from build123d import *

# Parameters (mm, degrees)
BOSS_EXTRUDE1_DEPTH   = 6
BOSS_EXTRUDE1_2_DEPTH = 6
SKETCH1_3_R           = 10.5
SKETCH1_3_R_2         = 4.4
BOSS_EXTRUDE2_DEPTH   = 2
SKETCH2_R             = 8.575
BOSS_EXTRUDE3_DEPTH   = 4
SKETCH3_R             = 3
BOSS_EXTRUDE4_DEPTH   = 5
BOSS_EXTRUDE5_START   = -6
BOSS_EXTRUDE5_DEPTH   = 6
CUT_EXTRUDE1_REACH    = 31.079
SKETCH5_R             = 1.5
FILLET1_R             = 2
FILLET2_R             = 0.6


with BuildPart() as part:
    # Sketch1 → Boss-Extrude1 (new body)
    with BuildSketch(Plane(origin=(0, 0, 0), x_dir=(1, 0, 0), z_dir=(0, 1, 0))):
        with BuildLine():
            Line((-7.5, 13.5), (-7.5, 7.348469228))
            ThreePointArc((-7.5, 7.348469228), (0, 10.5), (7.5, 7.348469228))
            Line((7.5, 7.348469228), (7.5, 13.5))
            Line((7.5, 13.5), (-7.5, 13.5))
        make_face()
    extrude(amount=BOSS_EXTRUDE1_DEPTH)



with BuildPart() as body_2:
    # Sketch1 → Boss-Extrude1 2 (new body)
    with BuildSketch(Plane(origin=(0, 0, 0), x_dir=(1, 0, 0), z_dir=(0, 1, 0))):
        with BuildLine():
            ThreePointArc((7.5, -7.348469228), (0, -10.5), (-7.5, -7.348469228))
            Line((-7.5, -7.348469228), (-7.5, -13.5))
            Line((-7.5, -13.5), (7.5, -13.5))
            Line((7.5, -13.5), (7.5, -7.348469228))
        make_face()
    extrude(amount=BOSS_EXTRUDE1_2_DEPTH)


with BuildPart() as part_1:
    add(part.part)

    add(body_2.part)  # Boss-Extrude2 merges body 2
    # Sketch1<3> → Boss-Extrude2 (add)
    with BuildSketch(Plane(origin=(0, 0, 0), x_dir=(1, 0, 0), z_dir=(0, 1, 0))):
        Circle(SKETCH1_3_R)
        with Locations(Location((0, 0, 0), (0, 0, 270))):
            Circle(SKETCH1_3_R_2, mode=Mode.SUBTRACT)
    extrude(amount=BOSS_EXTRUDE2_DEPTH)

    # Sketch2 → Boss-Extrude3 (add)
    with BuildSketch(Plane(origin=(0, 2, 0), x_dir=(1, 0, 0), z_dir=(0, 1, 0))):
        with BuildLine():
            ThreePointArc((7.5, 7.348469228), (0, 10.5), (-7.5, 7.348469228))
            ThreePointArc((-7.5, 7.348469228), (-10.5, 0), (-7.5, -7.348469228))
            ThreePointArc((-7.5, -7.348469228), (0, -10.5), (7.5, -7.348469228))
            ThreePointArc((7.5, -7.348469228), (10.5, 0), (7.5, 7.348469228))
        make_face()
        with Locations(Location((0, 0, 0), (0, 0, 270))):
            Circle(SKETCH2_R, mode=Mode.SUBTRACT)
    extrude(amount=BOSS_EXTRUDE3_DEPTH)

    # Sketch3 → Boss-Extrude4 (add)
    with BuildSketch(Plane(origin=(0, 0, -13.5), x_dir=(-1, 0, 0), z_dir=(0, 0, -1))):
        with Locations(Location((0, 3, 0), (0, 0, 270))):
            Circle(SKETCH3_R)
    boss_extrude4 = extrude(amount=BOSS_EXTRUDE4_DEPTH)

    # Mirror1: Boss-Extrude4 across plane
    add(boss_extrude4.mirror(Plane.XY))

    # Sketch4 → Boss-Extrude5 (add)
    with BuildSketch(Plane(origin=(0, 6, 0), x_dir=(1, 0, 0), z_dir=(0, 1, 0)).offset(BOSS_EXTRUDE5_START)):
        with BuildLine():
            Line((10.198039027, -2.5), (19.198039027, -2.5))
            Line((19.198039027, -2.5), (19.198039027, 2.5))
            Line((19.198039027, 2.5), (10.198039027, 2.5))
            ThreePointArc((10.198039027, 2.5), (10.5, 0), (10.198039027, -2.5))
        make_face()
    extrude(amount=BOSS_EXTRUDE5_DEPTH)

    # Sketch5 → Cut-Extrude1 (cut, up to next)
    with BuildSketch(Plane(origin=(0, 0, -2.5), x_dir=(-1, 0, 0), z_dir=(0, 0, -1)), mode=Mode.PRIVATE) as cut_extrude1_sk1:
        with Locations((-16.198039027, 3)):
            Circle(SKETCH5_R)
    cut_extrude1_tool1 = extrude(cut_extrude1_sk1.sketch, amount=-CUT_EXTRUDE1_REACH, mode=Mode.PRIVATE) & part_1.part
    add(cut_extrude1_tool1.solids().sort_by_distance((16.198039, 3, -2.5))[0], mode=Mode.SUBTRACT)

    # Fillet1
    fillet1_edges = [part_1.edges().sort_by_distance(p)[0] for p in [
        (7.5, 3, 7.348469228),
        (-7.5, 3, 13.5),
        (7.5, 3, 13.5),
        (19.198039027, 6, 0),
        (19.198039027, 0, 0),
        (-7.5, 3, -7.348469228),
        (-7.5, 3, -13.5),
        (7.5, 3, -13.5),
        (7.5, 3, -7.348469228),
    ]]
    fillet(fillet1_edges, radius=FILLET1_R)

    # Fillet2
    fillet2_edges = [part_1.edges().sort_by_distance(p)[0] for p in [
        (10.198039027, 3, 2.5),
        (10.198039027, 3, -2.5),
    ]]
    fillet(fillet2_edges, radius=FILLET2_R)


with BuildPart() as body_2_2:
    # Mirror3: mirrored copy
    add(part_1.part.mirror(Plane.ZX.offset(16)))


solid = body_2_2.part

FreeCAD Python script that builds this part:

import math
import FreeCAD as App
import Part
import Sketcher

V = App.Vector
Q = App.Units.Quantity


def edges_at(feature, points):
    """Names of the edges that pass closest to the given points."""
    edges = feature.Shape.Edges
    near = lambda p: min(range(len(edges)), key=lambda i: edges[i].distToShape(Part.Vertex(*p))[0])
    return sorted({f"Edge{near(p) + 1}" for p in points})

doc = App.newDocument("Part")
body = doc.addObject("PartDesign::Body", "Body")

# Sketch on XZ plane
sketch1 = doc.addObject("Sketcher::SketchObject", "Sketch")
body.addObject(sketch1)
sketch1.AttachmentSupport = (doc.XZ_Plane, [""])
sketch1.MapMode = "FlatFace"
sketch1.addGeometry([
    Part.LineSegment(V(-8, -14, 0), V(-8, -7, 0)),
    Part.ArcOfCircle(Part.Circle(V(0, 0, 0), V(0, 0, 1), 10), math.radians(-136), math.radians(-44)),
    Part.LineSegment(V(8, -7, 0), V(8, -14, 0)),
    Part.LineSegment(V(8, -14, 0), V(-8, -14, 0)),
], False)
sketch1.addConstraint([
    Sketcher.Constraint("Coincident", 0, 2, 1, 1),
    Sketcher.Constraint("Coincident", 1, 2, 2, 1),
    Sketcher.Constraint("Coincident", 2, 2, 3, 1),
    Sketcher.Constraint("Coincident", 3, 2, 0, 1),
    Sketcher.Constraint("Vertical", 0),
    Sketcher.Constraint("Vertical", 2),
    Sketcher.Constraint("Horizontal", 3),
    Sketcher.Constraint("Coincident", 1, 3, -1, 1),
    Sketcher.Constraint("Horizontal", 0, 2, 1, 2),
    Sketcher.Constraint("Radius", 1, Q("10.5 mm")),
    Sketcher.Constraint("DistanceX", 3, 2, 3, 1, Q("15 mm")),
    Sketcher.Constraint("DistanceY", 2, 2, -1, 1, Q("13.5 mm")),
])
pad1 = doc.addObject("PartDesign::Pad", "Pad")
body.addObject(pad1)
pad1.Profile = sketch1
pad1.Length = 6
pad1.Reversed = True
body2 = doc.addObject("PartDesign::Body", "Body001")

# Sketch on XZ plane
sketch2 = doc.addObject("Sketcher::SketchObject", "Sketch001")
body2.addObject(sketch2)
sketch2.AttachmentSupport = (doc.getObject("XZ_Plane001"), [""])
sketch2.MapMode = "FlatFace"
sketch2.addGeometry([
    Part.ArcOfCircle(Part.Circle(V(0, 0, 0), V(0, 0, 1), 10), math.radians(44), math.radians(136)),
    Part.LineSegment(V(-8, 7, 0), V(-8, 14, 0)),
    Part.LineSegment(V(-8, 14, 0), V(8, 14, 0)),
    Part.LineSegment(V(8, 14, 0), V(8, 7, 0)),
], False)
sketch2.addConstraint([
    Sketcher.Constraint("Coincident", 0, 2, 1, 1),
    Sketcher.Constraint("Coincident", 1, 2, 2, 1),
    Sketcher.Constraint("Coincident", 2, 2, 3, 1),
    Sketcher.Constraint("Coincident", 3, 2, 0, 1),
    Sketcher.Constraint("Vertical", 1),
    Sketcher.Constraint("Horizontal", 2),
    Sketcher.Constraint("Vertical", 3),
    Sketcher.Constraint("Coincident", 0, 3, -1, 1),
    Sketcher.Constraint("Horizontal", 0, 2, 3, 2),
    Sketcher.Constraint("Radius", 0, Q("10.5 mm")),
    Sketcher.Constraint("DistanceX", 2, 1, 2, 2, Q("15 mm")),
    Sketcher.Constraint("DistanceY", -1, 1, 1, 2, Q("13.5 mm")),
])
pad2 = doc.addObject("PartDesign::Pad", "Pad001")
body2.addObject(pad2)
pad2.Profile = sketch2
pad2.Length = 6
pad2.Reversed = True
body.AllowCompound = True
doc.recompute()

boolean = doc.addObject("PartDesign::Boolean", "Boolean")
body.addObject(boolean)
boolean.Type = "Fuse"
boolean.addObjects([body2])

# Sketch on XZ plane
sketch3 = doc.addObject("Sketcher::SketchObject", "Sketch002")
body.addObject(sketch3)
sketch3.AttachmentSupport = (doc.XZ_Plane, [""])
sketch3.MapMode = "FlatFace"
sketch3.addGeometry([
    Part.Circle(V(0, 0, 0), V(0, 0, 1), 10.5),
    Part.Circle(V(0, 0, 0), V(0, 0, 1), 4.4),
], False)
sketch3.addConstraint([
    Sketcher.Constraint("Coincident", 0, 3, -1, 1),
    Sketcher.Constraint("Coincident", 1, 3, -1, 1),
    Sketcher.Constraint("Diameter", 0, Q("21 mm")),
    Sketcher.Constraint("Diameter", 1, Q("8.8 mm")),
])
pad3 = doc.addObject("PartDesign::Pad", "Pad002")
body.addObject(pad3)
pad3.Profile = sketch3
pad3.Length = 2
pad3.Reversed = True

# Sketch on XZ plane
sketch4 = doc.addObject("Sketcher::SketchObject", "Sketch003")
body.addObject(sketch4)
sketch4.AttachmentSupport = (doc.XZ_Plane, [""])
sketch4.MapMode = "FlatFace"
sketch4.AttachmentOffset = App.Placement(V(0, 0, -2), App.Rotation())
sketch4.addGeometry([
    Part.ArcOfCircle(Part.Circle(V(0, 0, 0), V(0, 0, 1), 10), math.radians(-136), math.radians(-44)),  # 0
    Part.ArcOfCircle(Part.Circle(V(0, 0, 0), V(0, 0, 1), 10), math.radians(136), math.radians(224)),  # 1
    Part.ArcOfCircle(Part.Circle(V(0, 0, 0), V(0, 0, 1), 10), math.radians(44), math.radians(136)),  # 2
    Part.ArcOfCircle(Part.Circle(V(0, 0, 0), V(0, 0, 1), 10), math.radians(-44), math.radians(44)),  # 3
    Part.Circle(V(0, 0, 0), V(0, 0, 1), 9),  # 4
], False)
sketch4.addConstraint([
    Sketcher.Constraint("Tangent", 0, 1, 1, 2),
    Sketcher.Constraint("Tangent", 1, 1, 2, 2),
    Sketcher.Constraint("Tangent", 2, 1, 3, 2),
    Sketcher.Constraint("Tangent", 3, 1, 0, 2),
    Sketcher.Constraint("Coincident", 0, 3, -1, 1),
    Sketcher.Constraint("Coincident", 4, 3, -1, 1),
    Sketcher.Constraint("Equal", 0, 1),
    Sketcher.Constraint("Horizontal", 1, 1, 2, 1),
    Sketcher.Constraint("Horizontal", 0, 1, 3, 1),
    Sketcher.Constraint("Vertical", 0, 1, 1, 1),
    Sketcher.Constraint("Radius", 0, Q("10.5 mm")),
    Sketcher.Constraint("Diameter", 4, Q("17.15 mm")),
    Sketcher.Constraint("DistanceX", 0, 1, -1, 1, Q("7.5 mm")),
])
pad4 = doc.addObject("PartDesign::Pad", "Pad003")
body.addObject(pad4)
pad4.Profile = sketch4
pad4.Length = 4
pad4.Reversed = True

# Sketch on XY plane
sketch5 = doc.addObject("Sketcher::SketchObject", "Sketch004")
body.addObject(sketch5)
sketch5.AttachmentSupport = (doc.XY_Plane, [""])
sketch5.MapMode = "FlatFace"
sketch5.AttachmentOffset = App.Placement(V(0, 0, -13.5), App.Rotation())
sketch5.addGeometry(Part.Circle(V(0, 3, 0), V(0, 0, 1), 3), False)
sketch5.addConstraint([
    Sketcher.Constraint("PointOnObject", 0, 3, -2),
    Sketcher.Constraint("Diameter", 0, Q("6 mm")),
    Sketcher.Constraint("DistanceY", -1, 1, 0, 3, Q("3 mm")),
])
pad5 = doc.addObject("PartDesign::Pad", "Pad004")
body.addObject(pad5)
pad5.Profile = sketch5
pad5.Length = 5
pad5.Reversed = True
doc.recompute()

mirrored = doc.addObject("PartDesign::Mirrored", "Mirrored")
body.addObject(mirrored)
mirrored.Originals = [pad5]
mirrored.MirrorPlane = (doc.XY_Plane, [""])
body.Tip = mirrored

# Sketch on XZ plane
sketch6 = doc.addObject("Sketcher::SketchObject", "Sketch005")
body.addObject(sketch6)
sketch6.AttachmentSupport = (doc.XZ_Plane, [""])
sketch6.MapMode = "FlatFace"
sketch6.addGeometry([
    Part.LineSegment(V(10, 2, 0), V(19, 2, 0)),
    Part.LineSegment(V(19, 2, 0), V(19, -2, 0)),
    Part.LineSegment(V(19, -2, 0), V(10, -2, 0)),
    Part.ArcOfCircle(Part.Circle(V(0, 0, 0), V(0, 0, 1), 10), math.radians(-14), math.radians(14)),
], False)
sketch6.addConstraint([
    Sketcher.Constraint("Coincident", 0, 2, 1, 1),
    Sketcher.Constraint("Coincident", 1, 2, 2, 1),
    Sketcher.Constraint("Coincident", 2, 2, 3, 1),
    Sketcher.Constraint("Coincident", 3, 2, 0, 1),
    Sketcher.Constraint("Horizontal", 0),
    Sketcher.Constraint("Vertical", 1),
    Sketcher.Constraint("Horizontal", 2),
    Sketcher.Constraint("Coincident", 3, 3, -1, 1),
    Sketcher.Constraint("Vertical", 2, 2, 3, 2),
    Sketcher.Constraint("Radius", 3, Q("10.5 mm")),
    Sketcher.Constraint("DistanceX", 0, 1, 0, 2, Q("9 mm")),
    Sketcher.Constraint("DistanceY", 1, 2, 1, 1, Q("5 mm")),
])
pad6 = doc.addObject("PartDesign::Pad", "Pad005")
body.addObject(pad6)
pad6.Profile = sketch6
pad6.Length = 6
pad6.Reversed = True

# Sketch on XY plane
sketch7 = doc.addObject("Sketcher::SketchObject", "Sketch006")
body.addObject(sketch7)
sketch7.AttachmentSupport = (doc.XY_Plane, [""])
sketch7.MapMode = "FlatFace"
sketch7.AttachmentOffset = App.Placement(V(0, 0, -2.5), App.Rotation())
sketch7.addGeometry(Part.Circle(V(16.2, 3, 0), V(0, 0, 1), 1.5), False)
sketch7.addConstraint([
    Sketcher.Constraint("Diameter", 0, Q("3 mm")),
    Sketcher.Constraint("DistanceY", -1, 1, 0, 3, Q("3 mm")),
    Sketcher.Constraint("DistanceX", -1, 1, 0, 3, Q("16.198039 mm")),
])
pocket1 = doc.addObject("PartDesign::Pocket", "Pocket")
body.addObject(pocket1)
pocket1.Profile = sketch7
pocket1.Type = "UpToFirst"
pocket1.Reversed = True
doc.recompute()

fillet = doc.addObject("PartDesign::Fillet", "Fillet")
body.addObject(fillet)
fillet.Base = (pocket1, edges_at(pocket1, [
    (7.5, 4, 7.348),
    (-7.5, 3, 13.5),
    (7.5, 3, 13.5),
    (19.198, 6, 0),
    (19.198, 0, 0),
    (-7.5, 4, -7.348),
    (-7.5, 3, -13.5),
    (7.5, 3, -13.5),
    (7.5, 4, -7.348),
]))
fillet.Radius = 2
doc.recompute()

fillet2 = doc.addObject("PartDesign::Fillet", "Fillet001")
body.addObject(fillet2)
fillet2.Base = (fillet, edges_at(fillet, [(10.198, 4, 2.5), (10.198, 4, -2.5)]))
fillet2.Radius = 0.6
body3 = doc.addObject("PartDesign::Body", "Body002")
doc.recompute()

mirroring = doc.addObject("Part::Mirroring", "Mirroring")
mirroring.Source = body
mirroring.Base = V(0, 16, 0)
mirroring.Normal = V(0, 1, 0)
body3.BaseFeature = mirroring
doc.recompute()
body.Visibility = False
mirroring.Visibility = False

doc.recompute()
